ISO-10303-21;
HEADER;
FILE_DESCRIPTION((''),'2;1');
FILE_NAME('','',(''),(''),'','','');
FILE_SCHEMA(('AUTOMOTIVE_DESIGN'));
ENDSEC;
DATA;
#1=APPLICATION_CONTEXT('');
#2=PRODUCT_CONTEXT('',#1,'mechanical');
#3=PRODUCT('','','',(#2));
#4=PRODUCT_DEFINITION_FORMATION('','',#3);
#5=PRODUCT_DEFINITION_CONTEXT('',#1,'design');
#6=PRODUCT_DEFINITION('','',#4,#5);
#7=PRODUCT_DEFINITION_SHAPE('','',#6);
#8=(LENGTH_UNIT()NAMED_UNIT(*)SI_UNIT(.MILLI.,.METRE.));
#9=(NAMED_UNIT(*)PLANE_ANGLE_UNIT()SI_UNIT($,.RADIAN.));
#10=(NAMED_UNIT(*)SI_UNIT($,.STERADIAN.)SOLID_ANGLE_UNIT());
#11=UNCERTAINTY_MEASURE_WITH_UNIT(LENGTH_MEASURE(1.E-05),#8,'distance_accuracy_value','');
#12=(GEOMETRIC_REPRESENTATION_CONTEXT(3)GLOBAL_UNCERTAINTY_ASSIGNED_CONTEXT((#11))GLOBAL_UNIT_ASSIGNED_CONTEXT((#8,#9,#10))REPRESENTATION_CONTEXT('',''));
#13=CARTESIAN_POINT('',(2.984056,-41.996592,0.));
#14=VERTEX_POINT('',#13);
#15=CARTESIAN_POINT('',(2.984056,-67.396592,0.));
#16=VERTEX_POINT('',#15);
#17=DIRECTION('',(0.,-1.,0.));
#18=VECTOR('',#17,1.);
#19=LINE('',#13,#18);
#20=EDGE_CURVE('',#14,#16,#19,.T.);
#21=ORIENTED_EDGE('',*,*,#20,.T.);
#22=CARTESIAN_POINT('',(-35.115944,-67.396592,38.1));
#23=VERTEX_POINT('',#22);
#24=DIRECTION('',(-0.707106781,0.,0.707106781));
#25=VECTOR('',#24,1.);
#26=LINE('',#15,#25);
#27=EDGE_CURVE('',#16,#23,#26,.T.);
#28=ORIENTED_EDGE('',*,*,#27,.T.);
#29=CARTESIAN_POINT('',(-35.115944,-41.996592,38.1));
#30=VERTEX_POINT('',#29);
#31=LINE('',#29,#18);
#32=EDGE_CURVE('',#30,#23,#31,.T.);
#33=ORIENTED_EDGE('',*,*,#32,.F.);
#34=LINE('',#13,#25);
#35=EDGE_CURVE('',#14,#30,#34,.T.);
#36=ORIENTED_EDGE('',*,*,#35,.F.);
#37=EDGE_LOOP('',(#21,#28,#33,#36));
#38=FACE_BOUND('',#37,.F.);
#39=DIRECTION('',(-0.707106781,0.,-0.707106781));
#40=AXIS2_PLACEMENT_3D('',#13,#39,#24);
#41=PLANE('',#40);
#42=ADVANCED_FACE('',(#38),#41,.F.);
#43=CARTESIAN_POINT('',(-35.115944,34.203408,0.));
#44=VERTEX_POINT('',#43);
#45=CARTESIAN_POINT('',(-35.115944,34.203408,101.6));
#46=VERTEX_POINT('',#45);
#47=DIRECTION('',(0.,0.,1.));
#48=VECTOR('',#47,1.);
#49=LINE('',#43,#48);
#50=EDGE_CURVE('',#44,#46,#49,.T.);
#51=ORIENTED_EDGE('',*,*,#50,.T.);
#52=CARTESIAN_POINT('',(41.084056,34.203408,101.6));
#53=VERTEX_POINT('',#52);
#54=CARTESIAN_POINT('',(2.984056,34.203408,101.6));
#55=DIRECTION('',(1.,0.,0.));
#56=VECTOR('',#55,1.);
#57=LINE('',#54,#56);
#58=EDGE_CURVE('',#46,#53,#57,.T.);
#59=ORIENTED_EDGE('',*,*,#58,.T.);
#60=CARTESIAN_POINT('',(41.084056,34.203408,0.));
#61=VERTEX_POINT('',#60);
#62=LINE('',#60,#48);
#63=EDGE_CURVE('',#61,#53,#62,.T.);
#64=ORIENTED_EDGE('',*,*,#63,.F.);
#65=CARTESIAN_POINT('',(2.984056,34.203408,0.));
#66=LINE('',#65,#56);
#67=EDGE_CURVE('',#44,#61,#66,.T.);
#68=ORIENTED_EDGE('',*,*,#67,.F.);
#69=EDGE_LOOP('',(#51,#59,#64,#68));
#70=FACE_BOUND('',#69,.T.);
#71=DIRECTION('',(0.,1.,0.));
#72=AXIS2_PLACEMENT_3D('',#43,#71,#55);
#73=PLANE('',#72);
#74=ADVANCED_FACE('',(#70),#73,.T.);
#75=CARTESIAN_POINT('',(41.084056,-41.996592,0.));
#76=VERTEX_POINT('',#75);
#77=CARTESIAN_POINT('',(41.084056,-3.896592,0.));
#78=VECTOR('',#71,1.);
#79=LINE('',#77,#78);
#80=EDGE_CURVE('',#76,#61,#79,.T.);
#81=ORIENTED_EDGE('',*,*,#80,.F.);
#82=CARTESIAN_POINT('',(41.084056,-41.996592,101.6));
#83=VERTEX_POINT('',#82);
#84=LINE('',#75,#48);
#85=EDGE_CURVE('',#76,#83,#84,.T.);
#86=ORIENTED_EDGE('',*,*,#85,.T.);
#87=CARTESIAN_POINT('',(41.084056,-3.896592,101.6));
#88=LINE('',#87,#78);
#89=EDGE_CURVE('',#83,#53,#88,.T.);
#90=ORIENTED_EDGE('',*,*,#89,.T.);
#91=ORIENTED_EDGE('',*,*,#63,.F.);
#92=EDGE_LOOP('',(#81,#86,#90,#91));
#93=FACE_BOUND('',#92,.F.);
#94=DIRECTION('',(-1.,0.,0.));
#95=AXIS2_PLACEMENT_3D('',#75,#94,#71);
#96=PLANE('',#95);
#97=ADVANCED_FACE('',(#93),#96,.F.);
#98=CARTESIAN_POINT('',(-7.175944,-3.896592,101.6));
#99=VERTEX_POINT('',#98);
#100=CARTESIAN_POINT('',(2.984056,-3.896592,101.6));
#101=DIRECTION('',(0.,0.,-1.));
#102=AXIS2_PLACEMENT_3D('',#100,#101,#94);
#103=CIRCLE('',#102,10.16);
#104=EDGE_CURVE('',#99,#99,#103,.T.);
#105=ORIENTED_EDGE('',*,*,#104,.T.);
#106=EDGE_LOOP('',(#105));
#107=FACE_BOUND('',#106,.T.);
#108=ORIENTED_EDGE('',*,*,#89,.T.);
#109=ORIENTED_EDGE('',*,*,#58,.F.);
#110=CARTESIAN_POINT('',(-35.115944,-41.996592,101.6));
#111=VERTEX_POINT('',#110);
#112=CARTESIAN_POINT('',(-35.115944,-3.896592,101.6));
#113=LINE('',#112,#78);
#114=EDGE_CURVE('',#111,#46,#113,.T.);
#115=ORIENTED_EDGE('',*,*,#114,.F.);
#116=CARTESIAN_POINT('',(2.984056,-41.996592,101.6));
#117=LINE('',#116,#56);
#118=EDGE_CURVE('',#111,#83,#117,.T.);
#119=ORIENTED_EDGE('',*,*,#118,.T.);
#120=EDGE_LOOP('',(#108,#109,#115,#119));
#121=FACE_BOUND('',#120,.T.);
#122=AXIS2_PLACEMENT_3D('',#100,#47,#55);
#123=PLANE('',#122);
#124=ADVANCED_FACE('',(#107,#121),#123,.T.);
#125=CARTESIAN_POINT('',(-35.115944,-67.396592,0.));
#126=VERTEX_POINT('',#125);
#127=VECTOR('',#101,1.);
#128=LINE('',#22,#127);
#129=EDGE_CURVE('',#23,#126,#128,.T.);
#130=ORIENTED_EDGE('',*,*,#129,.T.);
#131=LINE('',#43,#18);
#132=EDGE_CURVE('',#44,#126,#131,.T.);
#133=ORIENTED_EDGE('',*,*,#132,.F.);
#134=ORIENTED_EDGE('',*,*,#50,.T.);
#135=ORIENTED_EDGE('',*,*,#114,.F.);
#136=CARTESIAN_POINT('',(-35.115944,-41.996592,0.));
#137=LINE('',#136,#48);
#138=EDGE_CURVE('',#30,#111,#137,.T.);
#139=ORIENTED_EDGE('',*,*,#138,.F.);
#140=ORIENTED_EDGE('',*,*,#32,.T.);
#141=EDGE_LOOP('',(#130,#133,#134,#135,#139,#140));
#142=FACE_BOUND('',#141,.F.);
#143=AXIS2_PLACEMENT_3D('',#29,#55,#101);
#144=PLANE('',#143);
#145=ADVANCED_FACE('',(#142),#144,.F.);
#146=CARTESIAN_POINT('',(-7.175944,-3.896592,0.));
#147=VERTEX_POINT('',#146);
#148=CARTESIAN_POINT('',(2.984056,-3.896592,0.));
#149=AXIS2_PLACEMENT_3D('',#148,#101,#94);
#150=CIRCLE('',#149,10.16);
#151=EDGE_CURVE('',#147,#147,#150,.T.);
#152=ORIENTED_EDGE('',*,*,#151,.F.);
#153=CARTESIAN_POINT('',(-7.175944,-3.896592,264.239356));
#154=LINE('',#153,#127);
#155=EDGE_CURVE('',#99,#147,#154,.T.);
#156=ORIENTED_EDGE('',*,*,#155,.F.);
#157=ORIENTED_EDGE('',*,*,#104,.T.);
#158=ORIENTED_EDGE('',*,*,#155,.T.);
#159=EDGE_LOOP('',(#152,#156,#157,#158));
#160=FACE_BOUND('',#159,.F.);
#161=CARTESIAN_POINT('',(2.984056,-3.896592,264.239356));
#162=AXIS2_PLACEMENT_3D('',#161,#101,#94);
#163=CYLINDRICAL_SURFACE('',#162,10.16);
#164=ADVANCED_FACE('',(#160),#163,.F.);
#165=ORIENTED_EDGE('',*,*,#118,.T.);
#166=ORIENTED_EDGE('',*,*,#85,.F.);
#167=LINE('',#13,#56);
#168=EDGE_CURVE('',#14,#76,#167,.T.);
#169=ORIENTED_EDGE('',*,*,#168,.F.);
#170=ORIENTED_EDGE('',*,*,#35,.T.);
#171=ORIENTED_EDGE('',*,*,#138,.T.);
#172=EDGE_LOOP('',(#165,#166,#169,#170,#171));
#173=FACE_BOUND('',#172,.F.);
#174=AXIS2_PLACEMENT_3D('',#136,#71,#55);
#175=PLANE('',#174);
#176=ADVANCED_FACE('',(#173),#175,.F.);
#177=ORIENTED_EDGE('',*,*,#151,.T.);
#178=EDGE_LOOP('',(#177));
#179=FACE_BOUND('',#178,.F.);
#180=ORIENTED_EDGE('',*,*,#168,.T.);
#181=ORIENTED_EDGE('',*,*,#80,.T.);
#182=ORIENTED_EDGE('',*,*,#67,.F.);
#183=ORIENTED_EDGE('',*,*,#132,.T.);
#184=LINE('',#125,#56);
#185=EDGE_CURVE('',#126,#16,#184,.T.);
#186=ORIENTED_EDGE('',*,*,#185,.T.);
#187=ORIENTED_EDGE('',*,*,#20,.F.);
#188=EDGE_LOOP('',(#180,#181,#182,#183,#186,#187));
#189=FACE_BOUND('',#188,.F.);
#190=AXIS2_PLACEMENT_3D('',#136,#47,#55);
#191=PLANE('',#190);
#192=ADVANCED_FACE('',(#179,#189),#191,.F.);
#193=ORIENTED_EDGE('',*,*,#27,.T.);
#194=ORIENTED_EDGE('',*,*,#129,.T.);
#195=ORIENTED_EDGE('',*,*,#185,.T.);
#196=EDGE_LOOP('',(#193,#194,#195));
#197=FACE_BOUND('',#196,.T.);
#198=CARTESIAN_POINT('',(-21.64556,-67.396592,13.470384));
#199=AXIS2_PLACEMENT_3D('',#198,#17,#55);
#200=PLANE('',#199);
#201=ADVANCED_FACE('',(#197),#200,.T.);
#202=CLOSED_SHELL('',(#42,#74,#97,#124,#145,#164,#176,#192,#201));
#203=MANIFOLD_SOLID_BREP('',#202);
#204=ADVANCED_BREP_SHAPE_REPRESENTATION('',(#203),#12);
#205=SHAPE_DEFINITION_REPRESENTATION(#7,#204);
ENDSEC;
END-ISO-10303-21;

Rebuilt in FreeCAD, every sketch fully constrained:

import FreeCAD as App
import Part
import Sketcher
Q = App.Units.Quantity

doc = App.newDocument("Part")
params = doc.addObject("Spreadsheet::Sheet", "Params")
for row, (alias, value) in enumerate([
    ("sketch1_width", "3 in"),
    ("pad1_length", "4 in"),
    ("sketch2_width", "1.5 in"),
    ("pad2_length", "1 in"),
    ("sketch3_diameter", "0.8 in"),
    ("hole_diameter", "0.8 in"),
], start=1):
    params.set(f"A{row}", alias)
    params.set(f"B{row}", "=" + value)
    params.setAlias(f"B{row}", alias)

body = doc.addObject("PartDesign::Body", "Body")

sketch1 = body.newObject("Sketcher::SketchObject", "Sketch")
sketch1.AttachmentSupport = (doc.getObject("XY_Plane"), [""])
sketch1.MapMode = "FlatFace"
sketch1.addGeometry([
    Part.LineSegment(App.Vector(-35, 34, 0), App.Vector(-35, -42, 0)),
    Part.LineSegment(App.Vector(-35, -42, 0), App.Vector(41, -42, 0)),
    Part.LineSegment(App.Vector(41, -42, 0), App.Vector(41, 34, 0)),
    Part.LineSegment(App.Vector(41, 34, 0), App.Vector(-35, 34, 0)),
], False)
sketch1.addConstraint([
    Sketcher.Constraint("Coincident", 0, 2, 1, 1),
    Sketcher.Constraint("Coincident", 1, 2, 2, 1),
    Sketcher.Constraint("Coincident", 2, 2, 3, 1),
    Sketcher.Constraint("Coincident", 3, 2, 0, 1),
    Sketcher.Constraint("Vertical", 0),
    Sketcher.Constraint("Horizontal", 1),
    Sketcher.Constraint("Vertical", 2),
    Sketcher.Constraint("Horizontal", 3),
    Sketcher.Constraint("Equal", 3, 0),
    Sketcher.Constraint("DistanceX", 1, 1, 1, 2, Q("3 in")),
    Sketcher.Constraint("DistanceY", -1, 1, 2, 2, Q("34.203408 mm")),
    Sketcher.Constraint("DistanceX", 0, 2, -1, 1, Q("35.115944 mm")),
])
sketch1.setExpression("Constraints[9]", "Params.sketch1_width")
pad1 = body.newObject("PartDesign::Pad", "Pad")
pad1.Profile = sketch1
pad1.setExpression("Length", "Params.pad1_length")

sketch2 = body.newObject("Sketcher::SketchObject", "Sketch001")
sketch2.AttachmentSupport = (doc.getObject("XZ_Plane"), [""])
sketch2.MapMode = "FlatFace"
sketch2.AttachmentOffset = App.Placement(App.Vector(0, 0, 41.996592), App.Rotation())
sketch2.addGeometry([
    Part.LineSegment(App.Vector(-35, 38, 0), App.Vector(-35, 0, 0)),
    Part.LineSegment(App.Vector(-35, 0, 0), App.Vector(3, 0, 0)),
    Part.LineSegment(App.Vector(3, 0, 0), App.Vector(-35, 38, 0)),
], False)
sketch2.addConstraint([
    Sketcher.Constraint("Coincident", 0, 2, 1, 1),
    Sketcher.Constraint("Coincident", 1, 2, 2, 1),
    Sketcher.Constraint("Coincident", 2, 2, 0, 1),
    Sketcher.Constraint("Vertical", 0),
    Sketcher.Constraint("Horizontal", 1),
    Sketcher.Constraint("PointOnObject", 0, 2, -1),
    Sketcher.Constraint("Equal", 1, 0),
    Sketcher.Constraint("DistanceX", 1, 1, 1, 2, Q("1.5 in")),
    Sketcher.Constraint("DistanceX", 0, 2, -1, 1, Q("35.115944 mm")),
])
sketch2.setExpression("Constraints[7]", "Params.sketch2_width")
pad2 = body.newObject("PartDesign::Pad", "Pad001")
pad2.Profile = sketch2
pad2.setExpression("Length", "Params.pad2_length")

sketch3 = body.newObject("Sketcher::SketchObject", "Sketch002")
sketch3.AttachmentSupport = (doc.getObject("XY_Plane"), [""])
sketch3.MapMode = "FlatFace"
sketch3.AttachmentOffset = App.Placement(App.Vector(0, 0, 4 * 25.4), App.Rotation())
sketch3.addGeometry(Part.Circle(App.Vector(3, -4, 0), App.Vector(0, 0, 1), 10), False)
sketch3.addConstraint([
    Sketcher.Constraint("Diameter", 0, Q("0.8 in")),
    Sketcher.Constraint("DistanceY", 0, 3, -1, 1, Q("3.896592 mm")),
    Sketcher.Constraint("DistanceX", -1, 1, 0, 3, Q("2.984056 mm")),
])
sketch3.setExpression("Constraints[0]", "Params.sketch3_diameter")
doc.recompute()
hole = body.newObject("PartDesign::Hole", "Hole")
hole.Profile = sketch3
hole.ThreadType = "None"
hole.setExpression("Diameter", "Params.hole_diameter")
hole.DepthType = "ThroughAll"

doc.recompute()
